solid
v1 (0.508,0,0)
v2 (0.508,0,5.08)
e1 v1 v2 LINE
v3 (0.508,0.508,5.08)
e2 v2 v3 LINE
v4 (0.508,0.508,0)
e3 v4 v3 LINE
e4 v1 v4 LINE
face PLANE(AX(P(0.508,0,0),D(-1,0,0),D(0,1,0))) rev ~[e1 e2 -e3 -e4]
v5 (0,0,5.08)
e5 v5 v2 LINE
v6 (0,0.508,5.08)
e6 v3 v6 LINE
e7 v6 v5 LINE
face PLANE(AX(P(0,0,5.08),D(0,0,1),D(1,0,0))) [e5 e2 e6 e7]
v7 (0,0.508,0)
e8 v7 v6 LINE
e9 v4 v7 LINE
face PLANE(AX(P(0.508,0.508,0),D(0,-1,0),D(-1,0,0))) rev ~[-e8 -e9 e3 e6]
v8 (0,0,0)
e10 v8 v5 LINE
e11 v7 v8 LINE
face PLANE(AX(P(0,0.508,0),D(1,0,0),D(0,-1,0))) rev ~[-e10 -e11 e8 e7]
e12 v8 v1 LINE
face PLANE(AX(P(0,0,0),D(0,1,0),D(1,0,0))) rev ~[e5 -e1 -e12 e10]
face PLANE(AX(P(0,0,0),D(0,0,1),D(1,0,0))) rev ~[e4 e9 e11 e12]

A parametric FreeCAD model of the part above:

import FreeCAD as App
import Part
import Sketcher

V = App.Vector
Q = App.Units.Quantity

doc = App.newDocument("Part")
params = doc.addObject("Spreadsheet::Sheet", "Params")
for row, (alias, value) in enumerate([
    ("sketch1_width", "0.02 in"),
    ("pad1_length", "0.2 in"),
], start=1):
    params.set(f"A{row}", alias)
    params.set(f"B{row}", "=" + value)
    params.setAlias(f"B{row}", alias)

body = doc.addObject("PartDesign::Body", "Body")

sketch1 = body.newObject("Sketcher::SketchObject", "Sketch")
sketch1.AttachmentSupport = (doc.getObject("XY_Plane"), [""])
sketch1.MapMode = "FlatFace"
sketch1.addGeometry([
    Part.LineSegment(V(0, 0.508, 0), V(0, 0, 0)),
    Part.LineSegment(V(0, 0, 0), V(0.508, 0, 0)),
    Part.LineSegment(V(0.508, 0, 0), V(0.508, 0.508, 0)),
    Part.LineSegment(V(0.508, 0.508, 0), V(0, 0.508, 0)),
], False)
sketch1.addConstraint([
    Sketcher.Constraint("Coincident", 0, 2, 1, 1),
    Sketcher.Constraint("Coincident", 1, 2, 2, 1),
    Sketcher.Constraint("Coincident", 2, 2, 3, 1),
    Sketcher.Constraint("Coincident", 3, 2, 0, 1),
    Sketcher.Constraint("Vertical", 0),
    Sketcher.Constraint("Horizontal", 1),
    Sketcher.Constraint("Vertical", 2),
    Sketcher.Constraint("Horizontal", 3),
    Sketcher.Constraint("Coincident", 0, 2, -1, 1),
    Sketcher.Constraint("Equal", 3, 0),
    Sketcher.Constraint("DistanceX", 1, 1, 1, 2, Q("0.02 in")),
])
sketch1.setExpression("Constraints[10]", "Params.sketch1_width")
pad1 = body.newObject("PartDesign::Pad", "Pad")
pad1.Profile = sketch1
pad1.setExpression("Length", "Params.pad1_length")

doc.recompute()
